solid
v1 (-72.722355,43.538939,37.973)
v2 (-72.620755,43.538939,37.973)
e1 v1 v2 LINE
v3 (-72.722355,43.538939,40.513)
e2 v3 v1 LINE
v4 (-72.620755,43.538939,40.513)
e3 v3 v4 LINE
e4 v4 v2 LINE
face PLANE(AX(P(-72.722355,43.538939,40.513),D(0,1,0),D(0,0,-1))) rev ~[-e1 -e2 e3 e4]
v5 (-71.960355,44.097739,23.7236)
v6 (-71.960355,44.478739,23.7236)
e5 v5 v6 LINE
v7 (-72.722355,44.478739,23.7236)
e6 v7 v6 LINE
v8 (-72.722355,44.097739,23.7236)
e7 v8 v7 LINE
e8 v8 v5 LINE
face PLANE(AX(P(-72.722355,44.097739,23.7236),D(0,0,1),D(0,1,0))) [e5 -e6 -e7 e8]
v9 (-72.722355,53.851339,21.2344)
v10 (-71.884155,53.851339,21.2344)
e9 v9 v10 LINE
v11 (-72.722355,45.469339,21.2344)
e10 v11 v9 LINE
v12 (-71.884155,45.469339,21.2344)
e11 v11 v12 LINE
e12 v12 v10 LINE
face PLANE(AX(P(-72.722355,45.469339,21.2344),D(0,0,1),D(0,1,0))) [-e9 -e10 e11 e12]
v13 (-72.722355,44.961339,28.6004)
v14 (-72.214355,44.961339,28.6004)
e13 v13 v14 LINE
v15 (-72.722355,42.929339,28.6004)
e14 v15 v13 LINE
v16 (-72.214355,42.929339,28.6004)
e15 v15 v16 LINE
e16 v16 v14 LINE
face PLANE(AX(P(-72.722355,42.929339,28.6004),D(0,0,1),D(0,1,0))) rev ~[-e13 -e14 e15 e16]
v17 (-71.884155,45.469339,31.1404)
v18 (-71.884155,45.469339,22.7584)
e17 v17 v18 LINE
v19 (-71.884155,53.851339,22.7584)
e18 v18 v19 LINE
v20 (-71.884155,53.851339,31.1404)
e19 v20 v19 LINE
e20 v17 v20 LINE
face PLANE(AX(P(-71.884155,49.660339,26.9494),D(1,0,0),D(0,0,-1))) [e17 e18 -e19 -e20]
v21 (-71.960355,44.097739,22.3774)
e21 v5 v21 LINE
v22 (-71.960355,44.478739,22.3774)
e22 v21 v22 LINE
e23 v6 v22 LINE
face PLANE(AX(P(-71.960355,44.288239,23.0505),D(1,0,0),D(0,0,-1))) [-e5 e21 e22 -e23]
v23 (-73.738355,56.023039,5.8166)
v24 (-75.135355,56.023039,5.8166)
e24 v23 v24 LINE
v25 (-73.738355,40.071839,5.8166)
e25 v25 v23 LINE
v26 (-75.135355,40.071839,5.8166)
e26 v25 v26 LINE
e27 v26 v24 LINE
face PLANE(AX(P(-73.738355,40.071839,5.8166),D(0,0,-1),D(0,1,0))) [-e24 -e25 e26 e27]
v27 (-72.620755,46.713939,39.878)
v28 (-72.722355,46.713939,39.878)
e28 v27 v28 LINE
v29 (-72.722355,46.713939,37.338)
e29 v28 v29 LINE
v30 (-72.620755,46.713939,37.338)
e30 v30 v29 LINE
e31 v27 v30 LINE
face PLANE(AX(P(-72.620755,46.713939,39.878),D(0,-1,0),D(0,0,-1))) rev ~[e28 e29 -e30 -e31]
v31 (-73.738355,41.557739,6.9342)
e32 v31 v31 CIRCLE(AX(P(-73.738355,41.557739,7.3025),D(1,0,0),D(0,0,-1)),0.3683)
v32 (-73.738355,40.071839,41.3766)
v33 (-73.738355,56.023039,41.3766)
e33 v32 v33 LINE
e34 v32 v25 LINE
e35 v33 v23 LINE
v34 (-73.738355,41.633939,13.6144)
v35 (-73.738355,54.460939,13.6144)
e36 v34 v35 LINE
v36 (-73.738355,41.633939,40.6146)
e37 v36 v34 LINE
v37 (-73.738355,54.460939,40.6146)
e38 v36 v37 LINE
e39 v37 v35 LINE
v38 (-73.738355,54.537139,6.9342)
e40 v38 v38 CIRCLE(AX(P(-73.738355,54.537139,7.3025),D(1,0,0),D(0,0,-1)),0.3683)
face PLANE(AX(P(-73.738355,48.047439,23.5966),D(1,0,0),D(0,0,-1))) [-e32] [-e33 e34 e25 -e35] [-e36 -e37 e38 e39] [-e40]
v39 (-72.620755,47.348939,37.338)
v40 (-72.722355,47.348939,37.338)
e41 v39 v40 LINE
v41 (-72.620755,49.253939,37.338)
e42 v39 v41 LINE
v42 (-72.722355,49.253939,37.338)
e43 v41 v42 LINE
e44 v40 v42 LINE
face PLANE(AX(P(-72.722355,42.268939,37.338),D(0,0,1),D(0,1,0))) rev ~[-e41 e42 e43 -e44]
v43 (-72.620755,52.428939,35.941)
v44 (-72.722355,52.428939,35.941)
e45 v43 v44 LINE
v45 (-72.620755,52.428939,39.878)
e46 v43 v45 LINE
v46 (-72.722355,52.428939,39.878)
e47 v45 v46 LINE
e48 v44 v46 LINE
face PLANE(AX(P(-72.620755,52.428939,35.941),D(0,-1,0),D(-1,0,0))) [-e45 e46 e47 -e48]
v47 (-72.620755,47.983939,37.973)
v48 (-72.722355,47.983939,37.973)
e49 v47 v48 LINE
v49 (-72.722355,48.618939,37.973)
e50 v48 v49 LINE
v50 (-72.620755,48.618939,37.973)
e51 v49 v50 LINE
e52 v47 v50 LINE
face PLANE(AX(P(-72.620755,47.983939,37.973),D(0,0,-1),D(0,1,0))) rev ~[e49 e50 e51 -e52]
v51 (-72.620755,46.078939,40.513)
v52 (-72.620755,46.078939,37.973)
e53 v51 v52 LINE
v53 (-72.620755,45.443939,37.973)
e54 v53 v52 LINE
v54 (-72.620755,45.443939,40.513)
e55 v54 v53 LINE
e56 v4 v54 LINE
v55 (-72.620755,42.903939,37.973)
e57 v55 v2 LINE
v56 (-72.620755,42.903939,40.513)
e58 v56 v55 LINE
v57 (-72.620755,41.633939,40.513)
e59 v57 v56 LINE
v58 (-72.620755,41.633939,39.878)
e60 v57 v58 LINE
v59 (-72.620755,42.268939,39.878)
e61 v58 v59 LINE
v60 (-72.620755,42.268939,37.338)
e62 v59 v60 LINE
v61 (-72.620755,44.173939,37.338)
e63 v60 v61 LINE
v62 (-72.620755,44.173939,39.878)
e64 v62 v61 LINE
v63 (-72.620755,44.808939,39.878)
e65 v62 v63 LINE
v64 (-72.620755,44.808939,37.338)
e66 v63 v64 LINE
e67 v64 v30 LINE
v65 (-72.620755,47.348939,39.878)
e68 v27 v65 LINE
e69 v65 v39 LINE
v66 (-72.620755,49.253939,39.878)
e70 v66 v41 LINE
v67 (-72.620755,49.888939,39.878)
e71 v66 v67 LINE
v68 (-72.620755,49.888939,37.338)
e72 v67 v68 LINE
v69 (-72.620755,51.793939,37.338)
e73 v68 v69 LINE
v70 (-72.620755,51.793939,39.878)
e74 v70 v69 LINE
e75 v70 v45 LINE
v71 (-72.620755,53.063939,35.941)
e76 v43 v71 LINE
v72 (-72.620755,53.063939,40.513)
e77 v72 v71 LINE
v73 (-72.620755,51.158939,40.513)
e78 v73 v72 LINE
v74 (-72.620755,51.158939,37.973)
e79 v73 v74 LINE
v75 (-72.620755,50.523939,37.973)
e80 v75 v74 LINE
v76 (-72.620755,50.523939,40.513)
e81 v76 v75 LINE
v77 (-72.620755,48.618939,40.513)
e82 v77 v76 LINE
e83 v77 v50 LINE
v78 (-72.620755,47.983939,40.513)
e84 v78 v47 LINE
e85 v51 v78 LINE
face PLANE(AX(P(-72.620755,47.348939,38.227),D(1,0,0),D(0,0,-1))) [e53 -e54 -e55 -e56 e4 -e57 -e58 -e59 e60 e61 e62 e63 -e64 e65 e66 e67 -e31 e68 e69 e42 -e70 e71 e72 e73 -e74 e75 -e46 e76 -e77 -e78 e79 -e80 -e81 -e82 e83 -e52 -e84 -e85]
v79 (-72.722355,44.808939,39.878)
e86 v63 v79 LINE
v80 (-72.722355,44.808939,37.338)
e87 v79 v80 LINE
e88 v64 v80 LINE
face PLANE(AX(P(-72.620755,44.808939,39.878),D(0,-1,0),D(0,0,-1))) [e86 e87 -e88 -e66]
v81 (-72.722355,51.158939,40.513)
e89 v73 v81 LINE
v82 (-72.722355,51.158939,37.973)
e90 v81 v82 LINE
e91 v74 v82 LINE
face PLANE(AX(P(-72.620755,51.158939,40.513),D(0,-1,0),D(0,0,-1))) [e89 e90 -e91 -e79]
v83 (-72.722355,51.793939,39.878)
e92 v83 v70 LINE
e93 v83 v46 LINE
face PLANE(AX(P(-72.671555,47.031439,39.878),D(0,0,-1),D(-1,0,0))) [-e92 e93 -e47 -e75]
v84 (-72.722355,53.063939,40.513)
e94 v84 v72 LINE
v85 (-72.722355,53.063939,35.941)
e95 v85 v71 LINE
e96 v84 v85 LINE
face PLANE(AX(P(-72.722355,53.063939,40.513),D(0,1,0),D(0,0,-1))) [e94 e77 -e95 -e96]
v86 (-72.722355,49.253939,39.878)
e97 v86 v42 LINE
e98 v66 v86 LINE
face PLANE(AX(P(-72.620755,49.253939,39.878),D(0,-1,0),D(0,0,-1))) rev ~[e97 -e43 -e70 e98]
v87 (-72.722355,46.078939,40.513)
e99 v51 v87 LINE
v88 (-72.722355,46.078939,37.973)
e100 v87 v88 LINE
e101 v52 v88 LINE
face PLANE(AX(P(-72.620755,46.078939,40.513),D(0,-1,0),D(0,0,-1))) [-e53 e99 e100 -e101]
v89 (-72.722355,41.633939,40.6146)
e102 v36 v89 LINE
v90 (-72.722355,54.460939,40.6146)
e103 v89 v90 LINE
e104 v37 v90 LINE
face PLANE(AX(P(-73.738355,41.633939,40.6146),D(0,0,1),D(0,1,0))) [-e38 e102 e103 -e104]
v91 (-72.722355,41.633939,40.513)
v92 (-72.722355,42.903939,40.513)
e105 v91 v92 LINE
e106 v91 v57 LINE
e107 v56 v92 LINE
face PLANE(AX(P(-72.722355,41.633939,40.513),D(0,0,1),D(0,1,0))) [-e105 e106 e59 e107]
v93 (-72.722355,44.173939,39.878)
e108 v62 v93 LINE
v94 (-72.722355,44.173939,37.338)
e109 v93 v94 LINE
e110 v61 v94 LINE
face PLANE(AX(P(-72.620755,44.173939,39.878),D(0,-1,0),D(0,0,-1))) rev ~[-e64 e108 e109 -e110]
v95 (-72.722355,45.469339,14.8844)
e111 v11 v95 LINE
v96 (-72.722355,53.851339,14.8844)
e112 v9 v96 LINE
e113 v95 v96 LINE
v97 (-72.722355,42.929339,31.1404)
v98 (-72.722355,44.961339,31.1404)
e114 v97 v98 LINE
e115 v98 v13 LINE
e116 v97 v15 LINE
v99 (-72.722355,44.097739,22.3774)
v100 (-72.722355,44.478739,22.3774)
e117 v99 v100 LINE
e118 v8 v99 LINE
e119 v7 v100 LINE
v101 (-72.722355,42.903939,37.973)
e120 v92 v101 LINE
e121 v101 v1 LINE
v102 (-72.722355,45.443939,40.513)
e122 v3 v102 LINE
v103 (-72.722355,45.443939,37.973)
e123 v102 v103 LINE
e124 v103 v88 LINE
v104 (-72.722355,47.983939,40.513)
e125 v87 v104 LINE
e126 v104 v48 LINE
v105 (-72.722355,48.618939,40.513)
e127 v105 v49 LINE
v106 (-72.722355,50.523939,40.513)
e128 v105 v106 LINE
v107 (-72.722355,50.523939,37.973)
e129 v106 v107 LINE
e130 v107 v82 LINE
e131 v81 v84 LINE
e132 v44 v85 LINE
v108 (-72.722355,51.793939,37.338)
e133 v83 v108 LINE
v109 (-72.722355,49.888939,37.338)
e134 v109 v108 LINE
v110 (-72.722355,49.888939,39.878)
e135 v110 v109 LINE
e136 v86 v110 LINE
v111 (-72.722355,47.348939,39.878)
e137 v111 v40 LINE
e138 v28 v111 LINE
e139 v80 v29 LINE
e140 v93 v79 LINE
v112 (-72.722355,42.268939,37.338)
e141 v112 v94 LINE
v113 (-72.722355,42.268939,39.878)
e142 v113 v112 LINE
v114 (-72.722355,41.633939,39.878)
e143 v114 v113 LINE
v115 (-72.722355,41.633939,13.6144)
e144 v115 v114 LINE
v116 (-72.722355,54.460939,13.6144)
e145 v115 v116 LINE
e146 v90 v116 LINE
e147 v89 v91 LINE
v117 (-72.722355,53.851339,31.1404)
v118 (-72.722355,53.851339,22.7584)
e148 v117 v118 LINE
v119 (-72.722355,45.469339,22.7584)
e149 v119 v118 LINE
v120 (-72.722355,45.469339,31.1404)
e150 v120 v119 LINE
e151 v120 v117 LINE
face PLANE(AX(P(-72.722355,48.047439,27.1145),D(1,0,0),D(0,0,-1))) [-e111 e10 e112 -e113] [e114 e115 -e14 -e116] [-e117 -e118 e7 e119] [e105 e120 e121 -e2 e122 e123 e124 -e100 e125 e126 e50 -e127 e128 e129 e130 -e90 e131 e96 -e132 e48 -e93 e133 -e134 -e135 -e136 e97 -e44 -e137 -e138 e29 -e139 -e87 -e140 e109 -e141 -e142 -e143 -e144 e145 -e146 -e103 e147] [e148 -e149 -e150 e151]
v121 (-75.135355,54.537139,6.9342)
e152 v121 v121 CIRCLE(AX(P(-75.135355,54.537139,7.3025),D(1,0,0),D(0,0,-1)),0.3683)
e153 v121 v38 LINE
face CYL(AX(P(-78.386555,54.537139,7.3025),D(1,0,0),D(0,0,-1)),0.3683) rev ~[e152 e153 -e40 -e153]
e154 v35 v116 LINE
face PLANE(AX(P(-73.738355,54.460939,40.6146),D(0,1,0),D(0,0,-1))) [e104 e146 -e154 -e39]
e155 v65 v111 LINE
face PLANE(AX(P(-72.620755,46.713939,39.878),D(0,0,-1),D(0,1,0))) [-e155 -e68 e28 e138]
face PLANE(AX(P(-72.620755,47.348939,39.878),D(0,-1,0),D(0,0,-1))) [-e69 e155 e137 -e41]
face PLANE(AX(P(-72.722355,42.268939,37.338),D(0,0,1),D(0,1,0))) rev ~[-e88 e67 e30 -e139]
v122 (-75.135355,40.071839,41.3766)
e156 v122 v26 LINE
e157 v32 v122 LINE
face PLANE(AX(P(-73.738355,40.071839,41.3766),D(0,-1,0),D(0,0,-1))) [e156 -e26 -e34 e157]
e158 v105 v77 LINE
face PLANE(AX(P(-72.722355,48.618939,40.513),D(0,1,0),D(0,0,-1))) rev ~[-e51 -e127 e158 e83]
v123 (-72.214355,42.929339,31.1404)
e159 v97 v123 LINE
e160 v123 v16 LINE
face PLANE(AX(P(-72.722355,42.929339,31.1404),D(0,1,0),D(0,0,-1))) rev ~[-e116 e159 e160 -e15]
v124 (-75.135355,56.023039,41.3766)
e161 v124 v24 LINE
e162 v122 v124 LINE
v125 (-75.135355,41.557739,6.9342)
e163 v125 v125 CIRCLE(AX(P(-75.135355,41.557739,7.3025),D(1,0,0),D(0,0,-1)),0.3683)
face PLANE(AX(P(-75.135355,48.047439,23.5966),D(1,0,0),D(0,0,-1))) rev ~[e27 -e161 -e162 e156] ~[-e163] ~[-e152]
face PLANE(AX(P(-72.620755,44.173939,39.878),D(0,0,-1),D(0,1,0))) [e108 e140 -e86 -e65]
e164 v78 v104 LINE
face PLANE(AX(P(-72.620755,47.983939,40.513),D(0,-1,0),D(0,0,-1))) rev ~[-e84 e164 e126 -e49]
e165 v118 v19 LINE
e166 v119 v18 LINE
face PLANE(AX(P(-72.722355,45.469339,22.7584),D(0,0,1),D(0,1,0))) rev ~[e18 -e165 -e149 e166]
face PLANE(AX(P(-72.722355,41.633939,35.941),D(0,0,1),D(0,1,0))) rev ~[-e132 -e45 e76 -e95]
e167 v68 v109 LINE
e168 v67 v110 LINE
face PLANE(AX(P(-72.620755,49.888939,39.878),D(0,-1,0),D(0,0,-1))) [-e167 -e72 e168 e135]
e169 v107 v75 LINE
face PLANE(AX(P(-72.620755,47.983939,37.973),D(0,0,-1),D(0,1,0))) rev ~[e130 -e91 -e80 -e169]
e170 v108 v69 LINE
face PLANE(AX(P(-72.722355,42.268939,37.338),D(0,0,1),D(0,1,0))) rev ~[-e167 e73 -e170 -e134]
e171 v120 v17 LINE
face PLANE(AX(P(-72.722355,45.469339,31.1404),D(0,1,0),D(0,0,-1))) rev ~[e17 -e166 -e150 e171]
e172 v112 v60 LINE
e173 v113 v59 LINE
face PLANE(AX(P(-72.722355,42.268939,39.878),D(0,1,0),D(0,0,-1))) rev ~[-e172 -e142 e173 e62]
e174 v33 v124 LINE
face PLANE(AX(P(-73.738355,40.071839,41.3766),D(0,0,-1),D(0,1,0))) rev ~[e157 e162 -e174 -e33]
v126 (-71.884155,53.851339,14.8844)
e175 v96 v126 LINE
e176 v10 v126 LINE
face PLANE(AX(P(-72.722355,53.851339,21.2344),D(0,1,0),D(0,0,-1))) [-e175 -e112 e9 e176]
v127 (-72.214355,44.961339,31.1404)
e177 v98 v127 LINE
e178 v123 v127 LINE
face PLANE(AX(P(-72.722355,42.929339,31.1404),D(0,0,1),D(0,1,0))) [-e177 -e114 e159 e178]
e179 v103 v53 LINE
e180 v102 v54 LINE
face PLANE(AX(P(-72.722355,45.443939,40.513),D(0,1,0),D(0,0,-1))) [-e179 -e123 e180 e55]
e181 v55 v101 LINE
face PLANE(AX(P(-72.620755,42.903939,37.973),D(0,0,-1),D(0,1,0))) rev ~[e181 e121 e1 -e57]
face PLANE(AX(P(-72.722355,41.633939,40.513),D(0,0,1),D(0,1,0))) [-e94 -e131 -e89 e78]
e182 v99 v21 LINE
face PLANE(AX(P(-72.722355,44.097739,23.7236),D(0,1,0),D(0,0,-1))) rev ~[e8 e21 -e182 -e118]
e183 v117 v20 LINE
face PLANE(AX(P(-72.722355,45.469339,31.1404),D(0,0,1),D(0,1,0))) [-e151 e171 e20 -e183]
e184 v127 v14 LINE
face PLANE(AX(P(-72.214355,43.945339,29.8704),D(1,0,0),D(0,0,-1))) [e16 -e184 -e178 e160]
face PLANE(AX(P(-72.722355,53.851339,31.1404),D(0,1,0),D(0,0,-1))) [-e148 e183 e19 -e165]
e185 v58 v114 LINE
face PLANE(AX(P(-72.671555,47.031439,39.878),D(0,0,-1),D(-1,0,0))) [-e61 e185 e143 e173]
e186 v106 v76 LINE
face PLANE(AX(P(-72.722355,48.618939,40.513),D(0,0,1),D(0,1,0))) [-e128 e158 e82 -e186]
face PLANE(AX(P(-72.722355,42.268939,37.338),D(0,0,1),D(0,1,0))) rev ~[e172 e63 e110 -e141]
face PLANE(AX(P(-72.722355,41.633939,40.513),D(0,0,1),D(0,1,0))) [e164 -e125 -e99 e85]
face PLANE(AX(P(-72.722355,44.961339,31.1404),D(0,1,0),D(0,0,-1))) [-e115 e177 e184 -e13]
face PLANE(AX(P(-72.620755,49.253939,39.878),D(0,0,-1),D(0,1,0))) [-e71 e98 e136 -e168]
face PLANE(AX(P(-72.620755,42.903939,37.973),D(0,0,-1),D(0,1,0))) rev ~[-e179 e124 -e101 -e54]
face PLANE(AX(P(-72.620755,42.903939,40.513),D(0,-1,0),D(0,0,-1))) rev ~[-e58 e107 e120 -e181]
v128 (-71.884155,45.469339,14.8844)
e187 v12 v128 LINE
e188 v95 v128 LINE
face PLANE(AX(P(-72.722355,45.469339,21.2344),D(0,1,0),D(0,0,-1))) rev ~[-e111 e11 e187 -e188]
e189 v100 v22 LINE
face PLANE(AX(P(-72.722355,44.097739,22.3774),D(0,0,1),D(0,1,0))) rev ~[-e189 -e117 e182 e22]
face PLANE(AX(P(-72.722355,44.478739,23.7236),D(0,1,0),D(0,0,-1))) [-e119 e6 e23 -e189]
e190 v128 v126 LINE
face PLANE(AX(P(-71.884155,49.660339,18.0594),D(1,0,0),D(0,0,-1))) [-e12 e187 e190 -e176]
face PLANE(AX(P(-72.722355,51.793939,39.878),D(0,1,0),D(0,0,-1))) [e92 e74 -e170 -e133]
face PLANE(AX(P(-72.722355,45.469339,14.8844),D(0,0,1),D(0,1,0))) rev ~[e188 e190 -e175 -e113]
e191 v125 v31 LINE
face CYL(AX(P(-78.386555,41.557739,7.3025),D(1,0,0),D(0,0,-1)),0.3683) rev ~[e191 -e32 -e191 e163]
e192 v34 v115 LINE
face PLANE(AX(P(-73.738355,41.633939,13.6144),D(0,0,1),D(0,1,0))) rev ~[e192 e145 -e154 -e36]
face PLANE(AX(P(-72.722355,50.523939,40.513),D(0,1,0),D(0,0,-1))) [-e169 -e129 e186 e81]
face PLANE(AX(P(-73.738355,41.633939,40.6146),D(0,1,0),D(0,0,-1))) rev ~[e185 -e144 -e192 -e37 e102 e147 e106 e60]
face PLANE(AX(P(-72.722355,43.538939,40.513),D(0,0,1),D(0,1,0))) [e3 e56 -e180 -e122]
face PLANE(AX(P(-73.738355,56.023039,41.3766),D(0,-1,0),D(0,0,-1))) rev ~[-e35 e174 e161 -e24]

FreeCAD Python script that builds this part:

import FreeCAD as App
import Part
import Sketcher
from FreeCAD import Vector
Q = App.Units.Quantity

doc = App.newDocument("Part")
body = doc.addObject("PartDesign::Body", "Body")

sketch1 = body.newObject("Sketcher::SketchObject", "Sketch")
sketch1.AttachmentSupport = (doc.getObject("YZ_Plane"), [""])
sketch1.MapMode = "FlatFace"
sketch1.AttachmentOffset = App.Placement(Vector(0, 0, -73.738355), App.Rotation())
sketch1.addGeometry(Part.LineSegment(Vector(56, 41, 0), Vector(40, 41, 0)), False)
sketch1.addGeometry(Part.LineSegment(Vector(40, 41, 0), Vector(40, 6, 0)), False)
sketch1.addGeometry(Part.LineSegment(Vector(40, 6, 0), Vector(56, 6, 0)), False)
sketch1.addGeometry(Part.LineSegment(Vector(56, 6, 0), Vector(56, 41, 0)), False)
sketch1.addConstraint(Sketcher.Constraint("Coincident", 0, 2, 1, 1))
sketch1.addConstraint(Sketcher.Constraint("Coincident", 1, 2, 2, 1))
sketch1.addConstraint(Sketcher.Constraint("Coincident", 2, 2, 3, 1))
sketch1.addConstraint(Sketcher.Constraint("Coincident", 3, 2, 0, 1))
sketch1.addConstraint(Sketcher.Constraint("Horizontal", 0))
sketch1.addConstraint(Sketcher.Constraint("Vertical", 1))
sketch1.addConstraint(Sketcher.Constraint("Horizontal", 2))
sketch1.addConstraint(Sketcher.Constraint("Vertical", 3))
sketch1.addConstraint(Sketcher.Constraint("DistanceY", 1, 2, 1, 1, Q("1.4 in")))
sketch1.addConstraint(Sketcher.Constraint("DistanceX", 0, 2, 0, 1, Q("0.628 in")))
sketch1.addConstraint(Sketcher.Constraint("DistanceY", -1, 1, 0, 2, Q("1.629 in")))
sketch1.addConstraint(Sketcher.Constraint("DistanceX", -1, 1, 0, 2, Q("40.071839 mm")))
pad1 = body.newObject("PartDesign::Pad", "Pad")
pad1.Profile = sketch1
pad1.Length = Q("0.055 in")
pad1.Reversed = True

sketch2 = body.newObject("Sketcher::SketchObject", "Sketch001")
sketch2.AttachmentSupport = (doc.getObject("YZ_Plane"), [""])
sketch2.MapMode = "FlatFace"
sketch2.AttachmentOffset = App.Placement(Vector(0, 0, -73.738355), App.Rotation())
sketch2.addGeometry(Part.LineSegment(Vector(54, 41, 0), Vector(42, 41, 0)), False)
sketch2.addGeometry(Part.LineSegment(Vector(42, 41, 0), Vector(42, 14, 0)), False)
sketch2.addGeometry(Part.LineSegment(Vector(42, 14, 0), Vector(54, 14, 0)), False)
sketch2.addGeometry(Part.LineSegment(Vector(54, 14, 0), Vector(54, 41, 0)), False)
sketch2.addConstraint(Sketcher.Constraint("Coincident", 0, 2, 1, 1))
sketch2.addConstraint(Sketcher.Constraint("Coincident", 1, 2, 2, 1))
sketch2.addConstraint(Sketcher.Constraint("Coincident", 2, 2, 3, 1))
sketch2.addConstraint(Sketcher.Constraint("Coincident", 3, 2, 0, 1))
sketch2.addConstraint(Sketcher.Constraint("Horizontal", 0))
sketch2.addConstraint(Sketcher.Constraint("Vertical", 1))
sketch2.addConstraint(Sketcher.Constraint("Horizontal", 2))
sketch2.addConstraint(Sketcher.Constraint("Vertical", 3))
sketch2.addConstraint(Sketcher.Constraint("DistanceX", 0, 2, 0, 1, Q("0.505 in")))
sketch2.addConstraint(Sketcher.Constraint("DistanceY", 1, 2, 1, 1, Q("1.063 in")))
sketch2.addConstraint(Sketcher.Constraint("DistanceY", -1, 1, 0, 2, Q("1.599 in")))
sketch2.addConstraint(Sketcher.Constraint("DistanceX", -1, 1, 0, 2, Q("41.633939 mm")))
pad2 = body.newObject("PartDesign::Pad", "Pad001")
pad2.Profile = sketch2
pad2.Length = Q("0.04 in")

sketch3 = body.newObject("Sketcher::SketchObject", "Sketch002")
sketch3.AttachmentSupport = (doc.getObject("YZ_Plane"), [""])
sketch3.MapMode = "FlatFace"
sketch3.AttachmentOffset = App.Placement(Vector(0, 0, -72.722355), App.Rotation())
sketch3.addGeometry(Part.LineSegment(Vector(53.1, 40.5, 0), Vector(41.6, 40.5, 0)), False)
sketch3.addGeometry(Part.LineSegment(Vector(41.6, 40.5, 0), Vector(41.6, 35.9, 0)), False)
sketch3.addGeometry(Part.LineSegment(Vector(41.6, 35.9, 0), Vector(53.1, 35.9, 0)), False)
sketch3.addGeometry(Part.LineSegment(Vector(53.1, 35.9, 0), Vector(53.1, 40.5, 0)), False)
sketch3.addConstraint(Sketcher.Constraint("Coincident", 0, 2, 1, 1))
sketch3.addConstraint(Sketcher.Constraint("Coincident", 1, 2, 2, 1))
sketch3.addConstraint(Sketcher.Constraint("Coincident", 2, 2, 3, 1))
sketch3.addConstraint(Sketcher.Constraint("Coincident", 3, 2, 0, 1))
sketch3.addConstraint(Sketcher.Constraint("Horizontal", 0))
sketch3.addConstraint(Sketcher.Constraint("Vertical", 1))
sketch3.addConstraint(Sketcher.Constraint("Horizontal", 2))
sketch3.addConstraint(Sketcher.Constraint("Vertical", 3))
sketch3.addConstraint(Sketcher.Constraint("DistanceX", 0, 2, 0, 1, Q("0.45 in")))
sketch3.addConstraint(Sketcher.Constraint("DistanceY", 1, 2, 1, 1, Q("0.18 in")))
sketch3.addConstraint(Sketcher.Constraint("DistanceY", -1, 1, 0, 2, Q("1.595 in")))
sketch3.addConstraint(Sketcher.Constraint("DistanceX", -1, 1, 0, 2, Q("41.633939 mm")))
pad3 = body.newObject("PartDesign::Pad", "Pad002")
pad3.Profile = sketch3
pad3.Length = Q("0.004 in")

sketch4 = body.newObject("Sketcher::SketchObject", "Sketch003")
sketch4.AttachmentSupport = (doc.getObject("XY_Plane"), [""])
sketch4.MapMode = "FlatFace"
sketch4.AttachmentOffset = App.Placement(Vector(0, 0, 1.415 * 25.4), App.Rotation())
sketch4.addGeometry(Part.LineSegment(Vector(-72.62, 52.43, 0), Vector(-72.62, 41.63, 0)), False)
sketch4.addGeometry(Part.LineSegment(Vector(-72.62, 41.63, 0), Vector(-72.72, 41.63, 0)), False)
sketch4.addGeometry(Part.LineSegment(Vector(-72.72, 41.63, 0), Vector(-72.72, 52.43, 0)), False)
sketch4.addGeometry(Part.LineSegment(Vector(-72.72, 52.43, 0), Vector(-72.62, 52.43, 0)), False)
sketch4.addConstraint(Sketcher.Constraint("Coincident", 0, 2, 1, 1))
sketch4.addConstraint(Sketcher.Constraint("Coincident", 1, 2, 2, 1))
sketch4.addConstraint(Sketcher.Constraint("Coincident", 2, 2, 3, 1))
sketch4.addConstraint(Sketcher.Constraint("Coincident", 3, 2, 0, 1))
sketch4.addConstraint(Sketcher.Constraint("Vertical", 0))
sketch4.addConstraint(Sketcher.Constraint("Horizontal", 1))
sketch4.addConstraint(Sketcher.Constraint("Vertical", 2))
sketch4.addConstraint(Sketcher.Constraint("Horizontal", 3))
sketch4.addConstraint(Sketcher.Constraint("DistanceX", 1, 2, 1, 1, Q("0.004 in")))
sketch4.addConstraint(Sketcher.Constraint("DistanceY", 0, 2, 0, 1, Q("0.425 in")))
sketch4.addConstraint(Sketcher.Constraint("DistanceY", -1, 1, 0, 2, Q("41.633939 mm")))
sketch4.addConstraint(Sketcher.Constraint("DistanceX", 0, 2, -1, 1, Q("72.620755 mm")))
pocket1 = body.newObject("PartDesign::Pocket", "Pocket")
pocket1.Profile = sketch4
pocket1.Length = Q("0.155 in")
pocket1.Reversed = True

sketch5 = body.newObject("Sketcher::SketchObject", "Sketch004")
sketch5.AttachmentSupport = (doc.getObject("YZ_Plane"), [""])
sketch5.MapMode = "FlatFace"
sketch5.AttachmentOffset = App.Placement(Vector(0, 0, -72.722355), App.Rotation())
sketch5.addGeometry(Part.LineSegment(Vector(51.8, 39.9, 0), Vector(42.3, 39.9, 0)), False)
sketch5.addGeometry(Part.LineSegment(Vector(42.3, 39.9, 0), Vector(42.3, 37.3, 0)), False)
sketch5.addGeometry(Part.LineSegment(Vector(42.3, 37.3, 0), Vector(51.8, 37.3, 0)), False)
sketch5.addGeometry(Part.LineSegment(Vector(51.8, 37.3, 0), Vector(51.8, 39.9, 0)), False)
sketch5.addConstraint(Sketcher.Constraint("Coincident", 0, 2, 1, 1))
sketch5.addConstraint(Sketcher.Constraint("Coincident", 1, 2, 2, 1))
sketch5.addConstraint(Sketcher.Constraint("Coincident", 2, 2, 3, 1))
sketch5.addConstraint(Sketcher.Constraint("Coincident", 3, 2, 0, 1))
sketch5.addConstraint(Sketcher.Constraint("Horizontal", 0))
sketch5.addConstraint(Sketcher.Constraint("Vertical", 1))
sketch5.addConstraint(Sketcher.Constraint("Horizontal", 2))
sketch5.addConstraint(Sketcher.Constraint("Vertical", 3))
sketch5.addConstraint(Sketcher.Constraint("DistanceY", 1, 2, 1, 1, Q("0.1 in")))
sketch5.addConstraint(Sketcher.Constraint("DistanceX", 0, 2, 0, 1, Q("0.375 in")))
sketch5.addConstraint(Sketcher.Constraint("DistanceY", -1, 1, 0, 2, Q("1.57 in")))
sketch5.addConstraint(Sketcher.Constraint("DistanceX", -1, 1, 0, 2, Q("42.268939 mm")))
pad4 = body.newObject("PartDesign::Pad", "Pad003")
pad4.Profile = sketch5
pad4.Length = Q("0.004 in")

sketch6 = body.newObject("Sketcher::SketchObject", "Sketch005")
sketch6.AttachmentSupport = (doc.getObject("YZ_Plane"), [""])
sketch6.MapMode = "FlatFace"
sketch6.AttachmentOffset = App.Placement(Vector(0, 0, -72.620755), App.Rotation())
sketch6.addGeometry(Part.LineSegment(Vector(51.2, 40.5, 0), Vector(48, 40.5, 0)), False)
sketch6.addGeometry(Part.LineSegment(Vector(48, 40.5, 0), Vector(48, 38, 0)), False)
sketch6.addGeometry(Part.LineSegment(Vector(48, 38, 0), Vector(51.2, 38, 0)), False)
sketch6.addGeometry(Part.LineSegment(Vector(51.2, 38, 0), Vector(51.2, 40.5, 0)), False)
sketch6.addConstraint(Sketcher.Constraint("Coincident", 0, 2, 1, 1))
sketch6.addConstraint(Sketcher.Constraint("Coincident", 1, 2, 2, 1))
sketch6.addConstraint(Sketcher.Constraint("Coincident", 2, 2, 3, 1))
sketch6.addConstraint(Sketcher.Constraint("Coincident", 3, 2, 0, 1))
sketch6.addConstraint(Sketcher.Constraint("Horizontal", 0))
sketch6.addConstraint(Sketcher.Constraint("Vertical", 1))
sketch6.addConstraint(Sketcher.Constraint("Horizontal", 2))
sketch6.addConstraint(Sketcher.Constraint("Vertical", 3))
sketch6.addConstraint(Sketcher.Constraint("DistanceY", 1, 2, 1, 1, Q("0.1 in")))
sketch6.addConstraint(Sketcher.Constraint("DistanceX", 0, 2, 0, 1, Q("0.125 in")))
sketch6.addConstraint(Sketcher.Constraint("DistanceY", -1, 1, 0, 2, Q("1.595 in")))
sketch6.addConstraint(Sketcher.Constraint("DistanceX", -1, 1, 0, 2, Q("47.983939 mm")))
pocket2 = body.newObject("PartDesign::Pocket", "Pocket001")
pocket2.Profile = sketch6
pocket2.Length = Q("0.004 in")

sketch7 = body.newObject("Sketcher::SketchObject", "Sketch006")
sketch7.AttachmentSupport = (doc.getObject("YZ_Plane"), [""])
sketch7.MapMode = "FlatFace"
sketch7.AttachmentOffset = App.Placement(Vector(0, 0, -72.722355), App.Rotation())
sketch7.addGeometry(Part.LineSegment(Vector(50.5, 40.5, 0), Vector(48.6, 40.5, 0)), False)
sketch7.addGeometry(Part.LineSegment(Vector(48.6, 40.5, 0), Vector(48.6, 38, 0)), False)
sketch7.addGeometry(Part.LineSegment(Vector(48.6, 38, 0), Vector(50.5, 38, 0)), False)
sketch7.addGeometry(Part.LineSegment(Vector(50.5, 38, 0), Vector(50.5, 40.5, 0)), False)
sketch7.addConstraint(Sketcher.Constraint("Coincident", 0, 2, 1, 1))
sketch7.addConstraint(Sketcher.Constraint("Coincident", 1, 2, 2, 1))
sketch7.addConstraint(Sketcher.Constraint("Coincident", 2, 2, 3, 1))
sketch7.addConstraint(Sketcher.Constraint("Coincident", 3, 2, 0, 1))
sketch7.addConstraint(Sketcher.Constraint("Horizontal", 0))
sketch7.addConstraint(Sketcher.Constraint("Vertical", 1))
sketch7.addConstraint(Sketcher.Constraint("Horizontal", 2))
sketch7.addConstraint(Sketcher.Constraint("Vertical", 3))
sketch7.addConstraint(Sketcher.Constraint("DistanceY", 1, 2, 1, 1, Q("0.1 in")))
sketch7.addConstraint(Sketcher.Constraint("DistanceX", 0, 2, 0, 1, Q("0.075 in")))
sketch7.addConstraint(Sketcher.Constraint("DistanceY", -1, 1, 0, 2, Q("1.595 in")))
sketch7.addConstraint(Sketcher.Constraint("DistanceX", -1, 1, 0, 2, Q("48.618939 mm")))
pad5 = body.newObject("PartDesign::Pad", "Pad004")
pad5.Profile = sketch7
pad5.Length = Q("0.004 in")

sketch8 = body.newObject("Sketcher::SketchObject", "Sketch007")
sketch8.AttachmentSupport = (doc.getObject("YZ_Plane"), [""])
sketch8.MapMode = "FlatFace"
sketch8.AttachmentOffset = App.Placement(Vector(0, 0, -72.620755), App.Rotation())
sketch8.addGeometry(Part.LineSegment(Vector(49.9, 39.9, 0), Vector(49.3, 39.9, 0)), False)
sketch8.addGeometry(Part.LineSegment(Vector(49.3, 39.9, 0), Vector(49.3, 37.3, 0)), False)
sketch8.addGeometry(Part.LineSegment(Vector(49.3, 37.3, 0), Vector(49.9, 37.3, 0)), False)
sketch8.addGeometry(Part.LineSegment(Vector(49.9, 37.3, 0), Vector(49.9, 39.9, 0)), False)
sketch8.addConstraint(Sketcher.Constraint("Coincident", 0, 2, 1, 1))
sketch8.addConstraint(Sketcher.Constraint("Coincident", 1, 2, 2, 1))
sketch8.addConstraint(Sketcher.Constraint("Coincident", 2, 2, 3, 1))
sketch8.addConstraint(Sketcher.Constraint("Coincident", 3, 2, 0, 1))
sketch8.addConstraint(Sketcher.Constraint("Horizontal", 0))
sketch8.addConstraint(Sketcher.Constraint("Vertical", 1))
sketch8.addConstraint(Sketcher.Constraint("Horizontal", 2))
sketch8.addConstraint(Sketcher.Constraint("Vertical", 3))
sketch8.addConstraint(Sketcher.Constraint("DistanceY", 1, 2, 1, 1, Q("0.1 in")))
sketch8.addConstraint(Sketcher.Constraint("DistanceX", 0, 2, 0, 1, Q("0.025 in")))
sketch8.addConstraint(Sketcher.Constraint("DistanceY", -1, 1, 0, 2, Q("1.57 in")))
sketch8.addConstraint(Sketcher.Constraint("DistanceX", -1, 1, 0, 2, Q("49.253939 mm")))
pocket3 = body.newObject("PartDesign::Pocket", "Pocket002")
pocket3.Profile = sketch8
pocket3.Length = Q("0.004 in")

sketch9 = body.newObject("Sketcher::SketchObject", "Sketch008")
sketch9.AttachmentSupport = (doc.getObject("YZ_Plane"), [""])
sketch9.MapMode = "FlatFace"
sketch9.AttachmentOffset = App.Placement(Vector(0, 0, -72.620755), App.Rotation())
sketch9.addGeometry(Part.LineSegment(Vector(47.3, 39.9, 0), Vector(46.7, 39.9, 0)), False)
sketch9.addGeometry(Part.LineSegment(Vector(46.7, 39.9, 0), Vector(46.7, 37.3, 0)), False)
sketch9.addGeometry(Part.LineSegment(Vector(46.7, 37.3, 0), Vector(47.3, 37.3, 0)), False)
sketch9.addGeometry(Part.LineSegment(Vector(47.3, 37.3, 0), Vector(47.3, 39.9, 0)), False)
sketch9.addConstraint(Sketcher.Constraint("Coincident", 0, 2, 1, 1))
sketch9.addConstraint(Sketcher.Constraint("Coincident", 1, 2, 2, 1))
sketch9.addConstraint(Sketcher.Constraint("Coincident", 2, 2, 3, 1))
sketch9.addConstraint(Sketcher.Constraint("Coincident", 3, 2, 0, 1))
sketch9.addConstraint(Sketcher.Constraint("Horizontal", 0))
sketch9.addConstraint(Sketcher.Constraint("Vertical", 1))
sketch9.addConstraint(Sketcher.Constraint("Horizontal", 2))
sketch9.addConstraint(Sketcher.Constraint("Vertical", 3))
sketch9.addConstraint(Sketcher.Constraint("DistanceY", 1, 2, 1, 1, Q("0.1 in")))
sketch9.addConstraint(Sketcher.Constraint("DistanceX", 0, 2, 0, 1, Q("0.025 in")))
sketch9.addConstraint(Sketcher.Constraint("DistanceY", -1, 1, 0, 2, Q("1.57 in")))
sketch9.addConstraint(Sketcher.Constraint("DistanceX", -1, 1, 0, 2, Q("46.713939 mm")))
pocket4 = body.newObject("PartDesign::Pocket", "Pocket003")
pocket4.Profile = sketch9
pocket4.Length = Q("0.004 in")

sketch10 = body.newObject("Sketcher::SketchObject", "Sketch009")
sketch10.AttachmentSupport = (doc.getObject("YZ_Plane"), [""])
sketch10.MapMode = "FlatFace"
sketch10.AttachmentOffset = App.Placement(Vector(0, 0, -72.620755), App.Rotation())
sketch10.addGeometry(Part.LineSegment(Vector(46.1, 40.5, 0), Vector(42.9, 40.5, 0)), False)
sketch10.addGeometry(Part.LineSegment(Vector(42.9, 40.5, 0), Vector(42.9, 38, 0)), False)
sketch10.addGeometry(Part.LineSegment(Vector(42.9, 38, 0), Vector(46.1, 38, 0)), False)
sketch10.addGeometry(Part.LineSegment(Vector(46.1, 38, 0), Vector(46.1, 40.5, 0)), False)
sketch10.addConstraint(Sketcher.Constraint("Coincident", 0, 2, 1, 1))
sketch10.addConstraint(Sketcher.Constraint("Coincident", 1, 2, 2, 1))
sketch10.addConstraint(Sketcher.Constraint("Coincident", 2, 2, 3, 1))
sketch10.addConstraint(Sketcher.Constraint("Coincident", 3, 2, 0, 1))
sketch10.addConstraint(Sketcher.Constraint("Horizontal", 0))
sketch10.addConstraint(Sketcher.Constraint("Vertical", 1))
sketch10.addConstraint(Sketcher.Constraint("Horizontal", 2))
sketch10.addConstraint(Sketcher.Constraint("Vertical", 3))
sketch10.addConstraint(Sketcher.Constraint("DistanceY", 1, 2, 1, 1, Q("0.1 in")))
sketch10.addConstraint(Sketcher.Constraint("DistanceX", 0, 2, 0, 1, Q("0.125 in")))
sketch10.addConstraint(Sketcher.Constraint("DistanceY", -1, 1, 0, 2, Q("1.595 in")))
sketch10.addConstraint(Sketcher.Constraint("DistanceX", -1, 1, 0, 2, Q("42.903939 mm")))
pocket5 = body.newObject("PartDesign::Pocket", "Pocket004")
pocket5.Profile = sketch10
pocket5.Length = Q("0.004 in")

sketch11 = body.newObject("Sketcher::SketchObject", "Sketch010")
sketch11.AttachmentSupport = (doc.getObject("YZ_Plane"), [""])
sketch11.MapMode = "FlatFace"
sketch11.AttachmentOffset = App.Placement(Vector(0, 0, -72.722355), App.Rotation())
sketch11.addGeometry(Part.LineSegment(Vector(45.4, 40.5, 0), Vector(43.5, 40.5, 0)), False)
sketch11.addGeometry(Part.LineSegment(Vector(43.5, 40.5, 0), Vector(43.5, 38, 0)), False)
sketch11.addGeometry(Part.LineSegment(Vector(43.5, 38, 0), Vector(45.4, 38, 0)), False)
sketch11.addGeometry(Part.LineSegment(Vector(45.4, 38, 0), Vector(45.4, 40.5, 0)), False)
sketch11.addConstraint(Sketcher.Constraint("Coincident", 0, 2, 1, 1))
sketch11.addConstraint(Sketcher.Constraint("Coincident", 1, 2, 2, 1))
sketch11.addConstraint(Sketcher.Constraint("Coincident", 2, 2, 3, 1))
sketch11.addConstraint(Sketcher.Constraint("Coincident", 3, 2, 0, 1))
sketch11.addConstraint(Sketcher.Constraint("Horizontal", 0))
sketch11.addConstraint(Sketcher.Constraint("Vertical", 1))
sketch11.addConstraint(Sketcher.Constraint("Horizontal", 2))
sketch11.addConstraint(Sketcher.Constraint("Vertical", 3))
sketch11.addConstraint(Sketcher.Constraint("DistanceY", 1, 2, 1, 1, Q("0.1 in")))
sketch11.addConstraint(Sketcher.Constraint("DistanceX", 0, 2, 0, 1, Q("0.075 in")))
sketch11.addConstraint(Sketcher.Constraint("DistanceY", -1, 1, 0, 2, Q("1.595 in")))
sketch11.addConstraint(Sketcher.Constraint("DistanceX", -1, 1, 0, 2, Q("43.538939 mm")))
pad6 = body.newObject("PartDesign::Pad", "Pad005")
pad6.Profile = sketch11
pad6.Length = Q("0.004 in")

sketch12 = body.newObject("Sketcher::SketchObject", "Sketch011")
sketch12.AttachmentSupport = (doc.getObject("YZ_Plane"), [""])
sketch12.MapMode = "FlatFace"
sketch12.AttachmentOffset = App.Placement(Vector(0, 0, -72.620755), App.Rotation())
sketch12.addGeometry(Part.LineSegment(Vector(44.8, 39.9, 0), Vector(44.2, 39.9, 0)), False)
sketch12.addGeometry(Part.LineSegment(Vector(44.2, 39.9, 0), Vector(44.2, 37.3, 0)), False)
sketch12.addGeometry(Part.LineSegment(Vector(44.2, 37.3, 0), Vector(44.8, 37.3, 0)), False)
sketch12.addGeometry(Part.LineSegment(Vector(44.8, 37.3, 0), Vector(44.8, 39.9, 0)), False)
sketch12.addConstraint(Sketcher.Constraint("Coincident", 0, 2, 1, 1))
sketch12.addConstraint(Sketcher.Constraint("Coincident", 1, 2, 2, 1))
sketch12.addConstraint(Sketcher.Constraint("Coincident", 2, 2, 3, 1))
sketch12.addConstraint(Sketcher.Constraint("Coincident", 3, 2, 0, 1))
sketch12.addConstraint(Sketcher.Constraint("Horizontal", 0))
sketch12.addConstraint(Sketcher.Constraint("Vertical", 1))
sketch12.addConstraint(Sketcher.Constraint("Horizontal", 2))
sketch12.addConstraint(Sketcher.Constraint("Vertical", 3))
sketch12.addConstraint(Sketcher.Constraint("DistanceY", 1, 2, 1, 1, Q("0.1 in")))
sketch12.addConstraint(Sketcher.Constraint("DistanceX", 0, 2, 0, 1, Q("0.025 in")))
sketch12.addConstraint(Sketcher.Constraint("DistanceY", -1, 1, 0, 2, Q("1.57 in")))
sketch12.addConstraint(Sketcher.Constraint("DistanceX", -1, 1, 0, 2, Q("44.173939 mm")))
pocket6 = body.newObject("PartDesign::Pocket", "Pocket005")
pocket6.Profile = sketch12
pocket6.Length = Q("0.004 in")

sketch13 = body.newObject("Sketcher::SketchObject", "Sketch012")
sketch13.AttachmentSupport = (doc.getObject("YZ_Plane"), [""])
sketch13.MapMode = "FlatFace"
sketch13.AttachmentOffset = App.Placement(Vector(0, 0, -72.722355), App.Rotation())
sketch13.addGeometry(Part.LineSegment(Vector(44.48, 23.72, 0), Vector(44.1, 23.72, 0)), False)
sketch13.addGeometry(Part.LineSegment(Vector(44.1, 23.72, 0), Vector(44.1, 22.38, 0)), False)
sketch13.addGeometry(Part.LineSegment(Vector(44.1, 22.38, 0), Vector(44.48, 22.38, 0)), False)
sketch13.addGeometry(Part.LineSegment(Vector(44.48, 22.38, 0), Vector(44.48, 23.72, 0)), False)
sketch13.addConstraint(Sketcher.Constraint("Coincident", 0, 2, 1, 1))
sketch13.addConstraint(Sketcher.Constraint("Coincident", 1, 2, 2, 1))
sketch13.addConstraint(Sketcher.Constraint("Coincident", 2, 2, 3, 1))
sketch13.addConstraint(Sketcher.Constraint("Coincident", 3, 2, 0, 1))
sketch13.addConstraint(Sketcher.Constraint("Horizontal", 0))
sketch13.addConstraint(Sketcher.Constraint("Vertical", 1))
sketch13.addConstraint(Sketcher.Constraint("Horizontal", 2))
sketch13.addConstraint(Sketcher.Constraint("Vertical", 3))
sketch13.addConstraint(Sketcher.Constraint("DistanceX", 0, 2, 0, 1, Q("0.015 in")))
sketch13.addConstraint(Sketcher.Constraint("DistanceY", 1, 2, 1, 1, Q("0.053 in")))
sketch13.addConstraint(Sketcher.Constraint("DistanceY", -1, 1, 0, 2, Q("0.934 in")))
sketch13.addConstraint(Sketcher.Constraint("DistanceX", -1, 1, 0, 2, Q("44.097739 mm")))
pad7 = body.newObject("PartDesign::Pad", "Pad006")
pad7.Profile = sketch13
pad7.Length = Q("0.03 in")

sketch14 = body.newObject("Sketcher::SketchObject", "Sketch013")
sketch14.AttachmentSupport = (doc.getObject("YZ_Plane"), [""])
sketch14.MapMode = "FlatFace"
sketch14.AttachmentOffset = App.Placement(Vector(0, 0, -72.722355), App.Rotation())
sketch14.addGeometry(Part.LineSegment(Vector(54, 21, 0), Vector(45, 21, 0)), False)
sketch14.addGeometry(Part.LineSegment(Vector(45, 21, 0), Vector(45, 15, 0)), False)
sketch14.addGeometry(Part.LineSegment(Vector(45, 15, 0), Vector(54, 15, 0)), False)
sketch14.addGeometry(Part.LineSegment(Vector(54, 15, 0), Vector(54, 21, 0)), False)
sketch14.addConstraint(Sketcher.Constraint("Coincident", 0, 2, 1, 1))
sketch14.addConstraint(Sketcher.Constraint("Coincident", 1, 2, 2, 1))
sketch14.addConstraint(Sketcher.Constraint("Coincident", 2, 2, 3, 1))
sketch14.addConstraint(Sketcher.Constraint("Coincident", 3, 2, 0, 1))
sketch14.addConstraint(Sketcher.Constraint("Horizontal", 0))
sketch14.addConstraint(Sketcher.Constraint("Vertical", 1))
sketch14.addConstraint(Sketcher.Constraint("Horizontal", 2))
sketch14.addConstraint(Sketcher.Constraint("Vertical", 3))
sketch14.addConstraint(Sketcher.Constraint("DistanceX", 0, 2, 0, 1, Q("0.33 in")))
sketch14.addConstraint(Sketcher.Constraint("DistanceY", 1, 2, 1, 1, Q("0.25 in")))
sketch14.addConstraint(Sketcher.Constraint("DistanceY", -1, 1, 0, 2, Q("0.836 in")))
sketch14.addConstraint(Sketcher.Constraint("DistanceX", -1, 1, 0, 2, Q("45.469339 mm")))
pad8 = body.newObject("PartDesign::Pad", "Pad007")
pad8.Profile = sketch14
pad8.Length = Q("0.033 in")

sketch15 = body.newObject("Sketcher::SketchObject", "Sketch014")
sketch15.AttachmentSupport = (doc.getObject("YZ_Plane"), [""])
sketch15.MapMode = "FlatFace"
sketch15.AttachmentOffset = App.Placement(Vector(0, 0, -72.722355), App.Rotation())
sketch15.addGeometry(Part.LineSegment(Vector(54, 31, 0), Vector(45, 31, 0)), False)
sketch15.addGeometry(Part.LineSegment(Vector(45, 31, 0), Vector(45, 23, 0)), False)
sketch15.addGeometry(Part.LineSegment(Vector(45, 23, 0), Vector(54, 23, 0)), False)
sketch15.addGeometry(Part.LineSegment(Vector(54, 23, 0), Vector(54, 31, 0)), False)
sketch15.addConstraint(Sketcher.Constraint("Coincident", 0, 2, 1, 1))
sketch15.addConstraint(Sketcher.Constraint("Coincident", 1, 2, 2, 1))
sketch15.addConstraint(Sketcher.Constraint("Coincident", 2, 2, 3, 1))
sketch15.addConstraint(Sketcher.Constraint("Coincident", 3, 2, 0, 1))
sketch15.addConstraint(Sketcher.Constraint("Horizontal", 0))
sketch15.addConstraint(Sketcher.Constraint("Vertical", 1))
sketch15.addConstraint(Sketcher.Constraint("Horizontal", 2))
sketch15.addConstraint(Sketcher.Constraint("Vertical", 3))
sketch15.addConstraint(Sketcher.Constraint("Equal", 2, 1))
sketch15.addConstraint(Sketcher.Constraint("DistanceX", 0, 2, 0, 1, Q("0.33 in")))
sketch15.addConstraint(Sketcher.Constraint("DistanceY", -1, 1, 0, 2, Q("1.226 in")))
sketch15.addConstraint(Sketcher.Constraint("DistanceX", -1, 1, 0, 2, Q("45.469339 mm")))
pad9 = body.newObject("PartDesign::Pad", "Pad008")
pad9.Profile = sketch15
pad9.Length = Q("0.033 in")

sketch16 = body.newObject("Sketcher::SketchObject", "Sketch015")
sketch16.AttachmentSupport = (doc.getObject("YZ_Plane"), [""])
sketch16.MapMode = "FlatFace"
sketch16.AttachmentOffset = App.Placement(Vector(0, 0, -72.722355), App.Rotation())
sketch16.addGeometry(Part.LineSegment(Vector(45, 31.1, 0), Vector(42.9, 31.1, 0)), False)
sketch16.addGeometry(Part.LineSegment(Vector(42.9, 31.1, 0), Vector(42.9, 28.6, 0)), False)
sketch16.addGeometry(Part.LineSegment(Vector(42.9, 28.6, 0), Vector(45, 28.6, 0)), False)
sketch16.addGeometry(Part.LineSegment(Vector(45, 28.6, 0), Vector(45, 31.1, 0)), False)
sketch16.addConstraint(Sketcher.Constraint("Coincident", 0, 2, 1, 1))
sketch16.addConstraint(Sketcher.Constraint("Coincident", 1, 2, 2, 1))
sketch16.addConstraint(Sketcher.Constraint("Coincident", 2, 2, 3, 1))
sketch16.addConstraint(Sketcher.Constraint("Coincident", 3, 2, 0, 1))
sketch16.addConstraint(Sketcher.Constraint("Horizontal", 0))
sketch16.addConstraint(Sketcher.Constraint("Vertical", 1))
sketch16.addConstraint(Sketcher.Constraint("Horizontal", 2))
sketch16.addConstraint(Sketcher.Constraint("Vertical", 3))
sketch16.addConstraint(Sketcher.Constraint("DistanceY", 1, 2, 1, 1, Q("0.1 in")))
sketch16.addConstraint(Sketcher.Constraint("DistanceX", 0, 2, 0, 1, Q("0.08 in")))
sketch16.addConstraint(Sketcher.Constraint("DistanceY", -1, 1, 0, 2, Q("1.226 in")))
sketch16.addConstraint(Sketcher.Constraint("DistanceX", -1, 1, 0, 2, Q("42.929339 mm")))
pad10 = body.newObject("PartDesign::Pad", "Pad009")
pad10.Profile = sketch16
pad10.Length = Q("0.02 in")

sketch17 = body.newObject("Sketcher::SketchObject", "Sketch016")
sketch17.AttachmentSupport = (doc.getObject("YZ_Plane"), [""])
sketch17.MapMode = "FlatFace"
sketch17.AttachmentOffset = App.Placement(Vector(0, 0, -75.135355), App.Rotation())
sketch17.addGeometry(Part.Circle(Vector(41.56, 7.3, 0), Vector(0, 0, 1), 0.37), False)
sketch17.addGeometry(Part.Circle(Vector(54.54, 7.3, 0), Vector(0, 0, 1), 0.37), False)
sketch17.addConstraint(Sketcher.Constraint("Equal", 0, 1))
sketch17.addConstraint(Sketcher.Constraint("Horizontal", 0, 3, 1, 3))
sketch17.addConstraint(Sketcher.Constraint("Diameter", 0, Q("0.029 in")))
sketch17.addConstraint(Sketcher.Constraint("DistanceX", 0, 3, 1, 3, Q("0.511 in")))
sketch17.addConstraint(Sketcher.Constraint("DistanceY", -1, 1, 0, 3, Q("0.2875 in")))
sketch17.addConstraint(Sketcher.Constraint("DistanceX", -1, 1, 0, 3, Q("41.557739 mm")))
doc.recompute()
hole = body.newObject("PartDesign::Hole", "Hole")
hole.Profile = sketch17
hole.ThreadType = "None"
hole.Diameter = Q("0.029 in")
hole.DepthType = "Dimension"
hole.Depth = Q("0.128 in")
hole.DrillPoint = "Flat"
hole.Reversed = True

doc.recompute()
